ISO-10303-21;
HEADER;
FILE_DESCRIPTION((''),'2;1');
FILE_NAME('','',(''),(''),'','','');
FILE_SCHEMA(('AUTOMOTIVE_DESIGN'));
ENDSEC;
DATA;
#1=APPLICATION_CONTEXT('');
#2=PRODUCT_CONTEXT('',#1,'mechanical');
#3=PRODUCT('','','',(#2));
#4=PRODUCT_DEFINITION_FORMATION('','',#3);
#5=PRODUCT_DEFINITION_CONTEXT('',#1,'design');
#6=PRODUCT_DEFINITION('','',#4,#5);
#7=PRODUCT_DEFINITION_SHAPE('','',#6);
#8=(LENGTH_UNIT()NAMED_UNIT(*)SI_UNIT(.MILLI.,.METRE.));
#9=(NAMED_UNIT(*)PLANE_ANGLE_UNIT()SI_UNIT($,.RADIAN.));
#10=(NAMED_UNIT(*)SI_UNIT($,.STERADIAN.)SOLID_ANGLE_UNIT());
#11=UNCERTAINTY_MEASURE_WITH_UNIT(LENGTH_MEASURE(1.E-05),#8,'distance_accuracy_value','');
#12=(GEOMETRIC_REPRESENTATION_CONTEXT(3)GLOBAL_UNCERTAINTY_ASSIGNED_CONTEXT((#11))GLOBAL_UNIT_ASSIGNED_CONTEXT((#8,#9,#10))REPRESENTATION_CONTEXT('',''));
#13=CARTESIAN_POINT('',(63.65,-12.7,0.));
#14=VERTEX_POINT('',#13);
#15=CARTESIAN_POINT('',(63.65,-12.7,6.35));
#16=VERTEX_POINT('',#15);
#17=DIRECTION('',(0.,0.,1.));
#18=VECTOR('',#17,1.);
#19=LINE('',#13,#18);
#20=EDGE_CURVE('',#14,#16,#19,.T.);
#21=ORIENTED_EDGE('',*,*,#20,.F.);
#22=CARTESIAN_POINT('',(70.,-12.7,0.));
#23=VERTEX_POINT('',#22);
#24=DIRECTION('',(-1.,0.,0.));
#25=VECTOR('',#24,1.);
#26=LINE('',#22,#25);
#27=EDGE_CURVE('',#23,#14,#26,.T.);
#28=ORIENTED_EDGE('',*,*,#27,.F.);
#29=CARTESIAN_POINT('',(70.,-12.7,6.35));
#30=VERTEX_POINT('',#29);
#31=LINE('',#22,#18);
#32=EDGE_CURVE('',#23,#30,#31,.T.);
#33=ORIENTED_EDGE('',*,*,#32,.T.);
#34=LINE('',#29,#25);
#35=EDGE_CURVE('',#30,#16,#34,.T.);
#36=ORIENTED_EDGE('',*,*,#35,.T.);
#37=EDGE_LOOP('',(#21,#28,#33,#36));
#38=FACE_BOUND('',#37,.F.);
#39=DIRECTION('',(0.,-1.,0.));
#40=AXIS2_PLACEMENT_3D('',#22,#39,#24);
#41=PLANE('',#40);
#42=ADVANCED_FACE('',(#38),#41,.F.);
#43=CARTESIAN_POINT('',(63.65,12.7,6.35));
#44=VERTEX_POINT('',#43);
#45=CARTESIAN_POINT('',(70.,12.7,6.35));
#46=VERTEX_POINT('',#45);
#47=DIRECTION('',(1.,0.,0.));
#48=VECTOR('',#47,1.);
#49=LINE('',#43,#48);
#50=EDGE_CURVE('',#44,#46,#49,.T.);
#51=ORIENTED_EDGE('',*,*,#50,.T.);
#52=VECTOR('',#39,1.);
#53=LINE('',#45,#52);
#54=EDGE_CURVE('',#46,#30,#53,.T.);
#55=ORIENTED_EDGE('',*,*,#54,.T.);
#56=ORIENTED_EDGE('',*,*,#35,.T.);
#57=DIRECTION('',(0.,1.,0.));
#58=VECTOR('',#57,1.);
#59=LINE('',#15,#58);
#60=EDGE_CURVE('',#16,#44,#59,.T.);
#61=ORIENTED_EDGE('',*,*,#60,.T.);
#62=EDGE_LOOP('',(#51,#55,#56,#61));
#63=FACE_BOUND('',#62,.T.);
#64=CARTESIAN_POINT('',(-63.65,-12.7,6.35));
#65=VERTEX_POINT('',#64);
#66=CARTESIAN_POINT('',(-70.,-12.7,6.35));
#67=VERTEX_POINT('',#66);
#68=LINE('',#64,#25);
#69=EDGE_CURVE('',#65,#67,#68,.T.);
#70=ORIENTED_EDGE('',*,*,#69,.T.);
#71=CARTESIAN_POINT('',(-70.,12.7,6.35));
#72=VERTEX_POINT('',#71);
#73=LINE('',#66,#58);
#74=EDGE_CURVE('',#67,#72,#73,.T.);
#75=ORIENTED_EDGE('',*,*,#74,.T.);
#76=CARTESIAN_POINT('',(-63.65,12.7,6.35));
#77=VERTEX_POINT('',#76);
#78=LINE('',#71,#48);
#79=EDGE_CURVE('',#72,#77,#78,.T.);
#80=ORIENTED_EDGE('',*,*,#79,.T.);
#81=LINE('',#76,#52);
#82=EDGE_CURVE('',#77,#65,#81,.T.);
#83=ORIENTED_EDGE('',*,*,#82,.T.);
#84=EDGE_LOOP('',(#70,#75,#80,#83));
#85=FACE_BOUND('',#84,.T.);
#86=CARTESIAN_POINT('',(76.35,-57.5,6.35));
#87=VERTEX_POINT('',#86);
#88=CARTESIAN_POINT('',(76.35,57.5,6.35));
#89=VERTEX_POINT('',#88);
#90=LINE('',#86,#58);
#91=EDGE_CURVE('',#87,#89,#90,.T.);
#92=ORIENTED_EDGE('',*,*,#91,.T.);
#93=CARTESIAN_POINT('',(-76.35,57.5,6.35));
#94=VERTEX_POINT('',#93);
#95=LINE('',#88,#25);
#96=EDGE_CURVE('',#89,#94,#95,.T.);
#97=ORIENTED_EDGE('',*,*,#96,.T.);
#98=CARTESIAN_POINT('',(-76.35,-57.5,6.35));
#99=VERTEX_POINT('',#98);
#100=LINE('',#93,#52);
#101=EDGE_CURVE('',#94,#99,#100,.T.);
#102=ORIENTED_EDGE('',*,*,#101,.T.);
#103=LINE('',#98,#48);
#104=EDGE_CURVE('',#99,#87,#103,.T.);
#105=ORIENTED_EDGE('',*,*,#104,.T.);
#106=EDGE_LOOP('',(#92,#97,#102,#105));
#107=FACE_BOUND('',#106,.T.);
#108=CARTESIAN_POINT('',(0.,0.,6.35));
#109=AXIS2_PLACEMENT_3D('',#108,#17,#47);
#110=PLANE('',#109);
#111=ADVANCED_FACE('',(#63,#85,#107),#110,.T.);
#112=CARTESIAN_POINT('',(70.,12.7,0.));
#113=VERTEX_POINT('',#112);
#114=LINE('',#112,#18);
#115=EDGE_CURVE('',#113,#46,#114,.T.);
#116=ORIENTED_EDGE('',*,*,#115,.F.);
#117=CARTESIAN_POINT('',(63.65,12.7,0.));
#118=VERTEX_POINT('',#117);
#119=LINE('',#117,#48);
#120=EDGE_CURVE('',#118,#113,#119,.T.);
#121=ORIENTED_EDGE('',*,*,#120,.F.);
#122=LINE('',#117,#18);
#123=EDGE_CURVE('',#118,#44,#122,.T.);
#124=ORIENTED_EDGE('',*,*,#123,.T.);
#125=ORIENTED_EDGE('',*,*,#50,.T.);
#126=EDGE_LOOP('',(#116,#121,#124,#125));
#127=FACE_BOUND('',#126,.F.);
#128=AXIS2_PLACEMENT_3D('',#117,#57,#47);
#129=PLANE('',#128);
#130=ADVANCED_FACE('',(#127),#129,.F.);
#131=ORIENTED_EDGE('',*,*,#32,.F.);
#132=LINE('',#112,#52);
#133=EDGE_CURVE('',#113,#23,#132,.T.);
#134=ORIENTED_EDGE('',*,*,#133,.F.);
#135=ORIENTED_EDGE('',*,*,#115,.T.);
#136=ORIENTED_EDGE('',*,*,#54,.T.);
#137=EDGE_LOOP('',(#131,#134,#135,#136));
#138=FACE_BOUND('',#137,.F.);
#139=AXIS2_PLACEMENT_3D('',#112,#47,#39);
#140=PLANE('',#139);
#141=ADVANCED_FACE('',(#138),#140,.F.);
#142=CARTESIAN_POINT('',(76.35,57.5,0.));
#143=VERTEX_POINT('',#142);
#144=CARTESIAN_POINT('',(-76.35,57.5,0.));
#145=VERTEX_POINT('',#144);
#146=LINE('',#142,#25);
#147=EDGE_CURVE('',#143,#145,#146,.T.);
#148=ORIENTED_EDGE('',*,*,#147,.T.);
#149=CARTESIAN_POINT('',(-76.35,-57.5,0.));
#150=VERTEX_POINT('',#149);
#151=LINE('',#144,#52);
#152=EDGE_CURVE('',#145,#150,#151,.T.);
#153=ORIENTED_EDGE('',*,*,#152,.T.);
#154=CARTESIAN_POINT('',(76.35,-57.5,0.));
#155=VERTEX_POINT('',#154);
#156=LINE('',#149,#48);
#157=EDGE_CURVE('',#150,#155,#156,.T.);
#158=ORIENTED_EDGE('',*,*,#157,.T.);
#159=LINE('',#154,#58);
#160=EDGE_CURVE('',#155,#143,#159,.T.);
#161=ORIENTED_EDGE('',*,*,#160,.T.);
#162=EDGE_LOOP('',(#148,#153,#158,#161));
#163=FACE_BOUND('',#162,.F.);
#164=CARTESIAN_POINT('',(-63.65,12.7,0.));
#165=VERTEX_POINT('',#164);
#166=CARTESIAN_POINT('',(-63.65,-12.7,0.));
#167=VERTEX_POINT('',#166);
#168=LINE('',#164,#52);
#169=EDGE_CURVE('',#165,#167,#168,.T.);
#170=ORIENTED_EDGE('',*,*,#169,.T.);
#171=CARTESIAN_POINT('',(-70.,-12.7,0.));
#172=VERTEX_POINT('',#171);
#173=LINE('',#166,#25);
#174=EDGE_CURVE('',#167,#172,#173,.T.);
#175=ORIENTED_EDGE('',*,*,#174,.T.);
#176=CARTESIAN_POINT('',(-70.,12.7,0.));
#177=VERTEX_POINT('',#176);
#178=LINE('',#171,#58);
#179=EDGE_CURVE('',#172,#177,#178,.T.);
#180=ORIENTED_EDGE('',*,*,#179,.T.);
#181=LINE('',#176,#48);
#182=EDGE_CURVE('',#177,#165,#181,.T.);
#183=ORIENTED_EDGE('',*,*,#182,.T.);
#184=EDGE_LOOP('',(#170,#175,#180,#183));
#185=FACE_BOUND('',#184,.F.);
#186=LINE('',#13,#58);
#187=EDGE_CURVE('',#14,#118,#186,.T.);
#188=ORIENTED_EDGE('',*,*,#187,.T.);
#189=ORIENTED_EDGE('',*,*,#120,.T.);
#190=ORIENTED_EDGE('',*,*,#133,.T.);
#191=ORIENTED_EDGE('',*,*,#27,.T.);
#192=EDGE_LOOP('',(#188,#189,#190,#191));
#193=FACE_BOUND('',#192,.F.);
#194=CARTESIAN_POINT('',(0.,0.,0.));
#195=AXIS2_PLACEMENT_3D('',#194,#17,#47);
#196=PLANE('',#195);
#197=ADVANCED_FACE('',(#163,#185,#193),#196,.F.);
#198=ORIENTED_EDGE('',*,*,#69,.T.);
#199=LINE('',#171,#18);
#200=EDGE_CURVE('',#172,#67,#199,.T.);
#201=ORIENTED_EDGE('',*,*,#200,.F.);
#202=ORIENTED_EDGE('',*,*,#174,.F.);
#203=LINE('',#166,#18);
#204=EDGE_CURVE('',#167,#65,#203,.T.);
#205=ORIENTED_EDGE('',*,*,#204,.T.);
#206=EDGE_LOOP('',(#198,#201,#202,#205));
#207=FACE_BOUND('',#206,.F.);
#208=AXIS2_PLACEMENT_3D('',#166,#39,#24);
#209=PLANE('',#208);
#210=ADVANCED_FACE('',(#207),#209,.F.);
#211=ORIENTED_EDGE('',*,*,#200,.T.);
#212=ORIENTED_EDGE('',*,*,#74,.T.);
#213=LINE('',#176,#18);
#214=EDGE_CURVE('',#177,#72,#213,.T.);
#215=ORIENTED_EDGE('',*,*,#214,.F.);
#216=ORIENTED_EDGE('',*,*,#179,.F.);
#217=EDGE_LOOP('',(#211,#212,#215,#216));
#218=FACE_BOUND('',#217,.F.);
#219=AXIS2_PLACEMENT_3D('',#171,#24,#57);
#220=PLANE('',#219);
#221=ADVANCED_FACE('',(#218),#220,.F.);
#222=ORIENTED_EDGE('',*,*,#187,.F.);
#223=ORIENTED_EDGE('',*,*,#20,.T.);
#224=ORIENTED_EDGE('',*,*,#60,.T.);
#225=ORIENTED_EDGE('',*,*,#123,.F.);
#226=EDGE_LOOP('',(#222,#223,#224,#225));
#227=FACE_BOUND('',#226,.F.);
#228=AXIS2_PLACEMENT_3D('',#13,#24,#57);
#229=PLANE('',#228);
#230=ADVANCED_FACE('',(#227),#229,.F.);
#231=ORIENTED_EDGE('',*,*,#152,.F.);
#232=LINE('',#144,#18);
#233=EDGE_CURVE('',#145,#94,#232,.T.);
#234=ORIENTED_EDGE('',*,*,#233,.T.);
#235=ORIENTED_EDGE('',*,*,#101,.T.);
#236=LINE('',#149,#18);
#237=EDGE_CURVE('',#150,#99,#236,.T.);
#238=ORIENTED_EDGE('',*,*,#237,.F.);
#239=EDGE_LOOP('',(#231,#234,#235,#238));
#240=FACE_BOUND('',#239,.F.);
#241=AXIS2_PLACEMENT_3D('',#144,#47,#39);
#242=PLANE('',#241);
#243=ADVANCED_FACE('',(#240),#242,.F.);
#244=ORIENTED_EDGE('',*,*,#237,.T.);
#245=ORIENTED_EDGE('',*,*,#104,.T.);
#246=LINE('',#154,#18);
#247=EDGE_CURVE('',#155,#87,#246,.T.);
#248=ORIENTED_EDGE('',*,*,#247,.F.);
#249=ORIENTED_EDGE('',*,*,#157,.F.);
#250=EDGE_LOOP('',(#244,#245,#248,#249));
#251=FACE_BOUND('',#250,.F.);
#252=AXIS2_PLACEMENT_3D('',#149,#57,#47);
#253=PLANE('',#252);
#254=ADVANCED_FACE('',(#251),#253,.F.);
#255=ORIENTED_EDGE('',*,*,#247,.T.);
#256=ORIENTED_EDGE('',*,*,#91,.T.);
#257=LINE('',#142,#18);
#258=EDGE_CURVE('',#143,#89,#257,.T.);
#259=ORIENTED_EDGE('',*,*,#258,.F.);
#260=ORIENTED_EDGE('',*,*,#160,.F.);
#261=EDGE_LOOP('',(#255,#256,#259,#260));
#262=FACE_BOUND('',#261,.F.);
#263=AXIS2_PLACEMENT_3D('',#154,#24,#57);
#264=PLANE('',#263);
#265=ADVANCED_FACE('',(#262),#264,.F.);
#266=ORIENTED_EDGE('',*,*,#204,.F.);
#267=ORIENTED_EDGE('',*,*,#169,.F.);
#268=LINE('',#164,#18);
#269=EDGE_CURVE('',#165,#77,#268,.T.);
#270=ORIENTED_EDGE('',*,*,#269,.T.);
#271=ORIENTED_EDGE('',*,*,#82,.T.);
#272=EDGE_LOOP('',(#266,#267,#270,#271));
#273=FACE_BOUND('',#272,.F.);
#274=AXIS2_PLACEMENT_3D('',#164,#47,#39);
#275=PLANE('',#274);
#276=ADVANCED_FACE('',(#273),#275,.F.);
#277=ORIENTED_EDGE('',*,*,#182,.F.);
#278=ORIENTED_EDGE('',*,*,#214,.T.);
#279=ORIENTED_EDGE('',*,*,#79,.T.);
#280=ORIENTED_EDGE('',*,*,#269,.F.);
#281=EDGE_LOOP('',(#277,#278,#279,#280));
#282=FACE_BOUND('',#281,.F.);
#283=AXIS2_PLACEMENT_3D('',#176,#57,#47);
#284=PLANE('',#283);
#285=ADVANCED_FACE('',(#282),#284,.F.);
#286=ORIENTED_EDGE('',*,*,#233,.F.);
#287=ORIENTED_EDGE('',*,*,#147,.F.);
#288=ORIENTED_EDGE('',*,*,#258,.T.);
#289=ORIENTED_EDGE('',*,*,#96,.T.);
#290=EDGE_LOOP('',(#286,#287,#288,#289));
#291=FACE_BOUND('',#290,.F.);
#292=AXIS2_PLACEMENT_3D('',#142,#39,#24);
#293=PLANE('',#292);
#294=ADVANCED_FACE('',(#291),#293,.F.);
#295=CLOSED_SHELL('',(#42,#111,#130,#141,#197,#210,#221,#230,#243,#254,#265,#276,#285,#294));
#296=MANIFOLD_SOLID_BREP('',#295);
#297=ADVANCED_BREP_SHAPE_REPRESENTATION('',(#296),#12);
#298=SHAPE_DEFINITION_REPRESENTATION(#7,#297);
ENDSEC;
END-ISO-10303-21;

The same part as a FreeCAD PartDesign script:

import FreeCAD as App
import Part
import Sketcher

V = App.Vector


def add_polygon(sketch, points):
    """Adds a closed chain of lines whose ends are joined by coincident constraints."""
    first, n = sketch.GeometryCount, len(points)
    for a, b in zip(points, points[1:] + points[:1]):
        sketch.addGeometry(Part.LineSegment(App.Vector(*a, 0), App.Vector(*b, 0)), False)
    for i in range(n):
        sketch.addConstraint(Sketcher.Constraint("Coincident", first + i, 2, first + (i + 1) % n, 1))

doc = App.newDocument("Part")
body = doc.addObject("PartDesign::Body", "Body")

# Sketch on XY plane
sketch1 = body.newObject("Sketcher::SketchObject", "Sketch")
sketch1.AttachmentSupport = (doc.getObject("XY_Plane"), [""])
sketch1.MapMode = "FlatFace"
add_polygon(sketch1, [(76, -58), (76, 58), (-76, 58), (-76, -58)])  # lines 0-3
add_polygon(sketch1, [(-70, 13), (-64, 13), (-64, -13), (-70, -13)])  # lines 4-7
add_polygon(sketch1, [(70, -13), (64, -13), (64, 13), (70, 13)])  # lines 8-11
sketch1.addConstraint([
    Sketcher.Constraint("Vertical", 0),
    Sketcher.Constraint("Horizontal", 1),
    Sketcher.Constraint("Vertical", 2),
    Sketcher.Constraint("Horizontal", 3),
    Sketcher.Constraint("Horizontal", 4),
    Sketcher.Constraint("Vertical", 5),
    Sketcher.Constraint("Horizontal", 6),
    Sketcher.Constraint("Vertical", 7),
    Sketcher.Constraint("Horizontal", 8),
    Sketcher.Constraint("Vertical", 9),
    Sketcher.Constraint("Horizontal", 10),
    Sketcher.Constraint("Vertical", 11),
    Sketcher.Constraint("Symmetric", 0, 2, 2, 2, -1, 1),
    Sketcher.Constraint("Symmetric", 4, 2, 8, 2, -1, 1),
    Sketcher.Constraint("Symmetric", 6, 2, 10, 2, -1, 1),
    Sketcher.Constraint("Horizontal", 6, 2, 8, 2),
    Sketcher.Constraint("DistanceY", 0, 1, 0, 2, 115.0),
    Sketcher.Constraint("DistanceX", 1, 2, 1, 1, 152.7),
    Sketcher.Constraint("DistanceY", 5, 2, 5, 1, 25.4),
    Sketcher.Constraint("DistanceX", 6, 2, -1, 1, 70.0),
    Sketcher.Constraint("DistanceX", 4, 2, 0, 2, 140.0),
])
pad1 = body.newObject("PartDesign::Pad", "Pad")
pad1.Profile = sketch1
pad1.Length = 6.35

doc.recompute()
